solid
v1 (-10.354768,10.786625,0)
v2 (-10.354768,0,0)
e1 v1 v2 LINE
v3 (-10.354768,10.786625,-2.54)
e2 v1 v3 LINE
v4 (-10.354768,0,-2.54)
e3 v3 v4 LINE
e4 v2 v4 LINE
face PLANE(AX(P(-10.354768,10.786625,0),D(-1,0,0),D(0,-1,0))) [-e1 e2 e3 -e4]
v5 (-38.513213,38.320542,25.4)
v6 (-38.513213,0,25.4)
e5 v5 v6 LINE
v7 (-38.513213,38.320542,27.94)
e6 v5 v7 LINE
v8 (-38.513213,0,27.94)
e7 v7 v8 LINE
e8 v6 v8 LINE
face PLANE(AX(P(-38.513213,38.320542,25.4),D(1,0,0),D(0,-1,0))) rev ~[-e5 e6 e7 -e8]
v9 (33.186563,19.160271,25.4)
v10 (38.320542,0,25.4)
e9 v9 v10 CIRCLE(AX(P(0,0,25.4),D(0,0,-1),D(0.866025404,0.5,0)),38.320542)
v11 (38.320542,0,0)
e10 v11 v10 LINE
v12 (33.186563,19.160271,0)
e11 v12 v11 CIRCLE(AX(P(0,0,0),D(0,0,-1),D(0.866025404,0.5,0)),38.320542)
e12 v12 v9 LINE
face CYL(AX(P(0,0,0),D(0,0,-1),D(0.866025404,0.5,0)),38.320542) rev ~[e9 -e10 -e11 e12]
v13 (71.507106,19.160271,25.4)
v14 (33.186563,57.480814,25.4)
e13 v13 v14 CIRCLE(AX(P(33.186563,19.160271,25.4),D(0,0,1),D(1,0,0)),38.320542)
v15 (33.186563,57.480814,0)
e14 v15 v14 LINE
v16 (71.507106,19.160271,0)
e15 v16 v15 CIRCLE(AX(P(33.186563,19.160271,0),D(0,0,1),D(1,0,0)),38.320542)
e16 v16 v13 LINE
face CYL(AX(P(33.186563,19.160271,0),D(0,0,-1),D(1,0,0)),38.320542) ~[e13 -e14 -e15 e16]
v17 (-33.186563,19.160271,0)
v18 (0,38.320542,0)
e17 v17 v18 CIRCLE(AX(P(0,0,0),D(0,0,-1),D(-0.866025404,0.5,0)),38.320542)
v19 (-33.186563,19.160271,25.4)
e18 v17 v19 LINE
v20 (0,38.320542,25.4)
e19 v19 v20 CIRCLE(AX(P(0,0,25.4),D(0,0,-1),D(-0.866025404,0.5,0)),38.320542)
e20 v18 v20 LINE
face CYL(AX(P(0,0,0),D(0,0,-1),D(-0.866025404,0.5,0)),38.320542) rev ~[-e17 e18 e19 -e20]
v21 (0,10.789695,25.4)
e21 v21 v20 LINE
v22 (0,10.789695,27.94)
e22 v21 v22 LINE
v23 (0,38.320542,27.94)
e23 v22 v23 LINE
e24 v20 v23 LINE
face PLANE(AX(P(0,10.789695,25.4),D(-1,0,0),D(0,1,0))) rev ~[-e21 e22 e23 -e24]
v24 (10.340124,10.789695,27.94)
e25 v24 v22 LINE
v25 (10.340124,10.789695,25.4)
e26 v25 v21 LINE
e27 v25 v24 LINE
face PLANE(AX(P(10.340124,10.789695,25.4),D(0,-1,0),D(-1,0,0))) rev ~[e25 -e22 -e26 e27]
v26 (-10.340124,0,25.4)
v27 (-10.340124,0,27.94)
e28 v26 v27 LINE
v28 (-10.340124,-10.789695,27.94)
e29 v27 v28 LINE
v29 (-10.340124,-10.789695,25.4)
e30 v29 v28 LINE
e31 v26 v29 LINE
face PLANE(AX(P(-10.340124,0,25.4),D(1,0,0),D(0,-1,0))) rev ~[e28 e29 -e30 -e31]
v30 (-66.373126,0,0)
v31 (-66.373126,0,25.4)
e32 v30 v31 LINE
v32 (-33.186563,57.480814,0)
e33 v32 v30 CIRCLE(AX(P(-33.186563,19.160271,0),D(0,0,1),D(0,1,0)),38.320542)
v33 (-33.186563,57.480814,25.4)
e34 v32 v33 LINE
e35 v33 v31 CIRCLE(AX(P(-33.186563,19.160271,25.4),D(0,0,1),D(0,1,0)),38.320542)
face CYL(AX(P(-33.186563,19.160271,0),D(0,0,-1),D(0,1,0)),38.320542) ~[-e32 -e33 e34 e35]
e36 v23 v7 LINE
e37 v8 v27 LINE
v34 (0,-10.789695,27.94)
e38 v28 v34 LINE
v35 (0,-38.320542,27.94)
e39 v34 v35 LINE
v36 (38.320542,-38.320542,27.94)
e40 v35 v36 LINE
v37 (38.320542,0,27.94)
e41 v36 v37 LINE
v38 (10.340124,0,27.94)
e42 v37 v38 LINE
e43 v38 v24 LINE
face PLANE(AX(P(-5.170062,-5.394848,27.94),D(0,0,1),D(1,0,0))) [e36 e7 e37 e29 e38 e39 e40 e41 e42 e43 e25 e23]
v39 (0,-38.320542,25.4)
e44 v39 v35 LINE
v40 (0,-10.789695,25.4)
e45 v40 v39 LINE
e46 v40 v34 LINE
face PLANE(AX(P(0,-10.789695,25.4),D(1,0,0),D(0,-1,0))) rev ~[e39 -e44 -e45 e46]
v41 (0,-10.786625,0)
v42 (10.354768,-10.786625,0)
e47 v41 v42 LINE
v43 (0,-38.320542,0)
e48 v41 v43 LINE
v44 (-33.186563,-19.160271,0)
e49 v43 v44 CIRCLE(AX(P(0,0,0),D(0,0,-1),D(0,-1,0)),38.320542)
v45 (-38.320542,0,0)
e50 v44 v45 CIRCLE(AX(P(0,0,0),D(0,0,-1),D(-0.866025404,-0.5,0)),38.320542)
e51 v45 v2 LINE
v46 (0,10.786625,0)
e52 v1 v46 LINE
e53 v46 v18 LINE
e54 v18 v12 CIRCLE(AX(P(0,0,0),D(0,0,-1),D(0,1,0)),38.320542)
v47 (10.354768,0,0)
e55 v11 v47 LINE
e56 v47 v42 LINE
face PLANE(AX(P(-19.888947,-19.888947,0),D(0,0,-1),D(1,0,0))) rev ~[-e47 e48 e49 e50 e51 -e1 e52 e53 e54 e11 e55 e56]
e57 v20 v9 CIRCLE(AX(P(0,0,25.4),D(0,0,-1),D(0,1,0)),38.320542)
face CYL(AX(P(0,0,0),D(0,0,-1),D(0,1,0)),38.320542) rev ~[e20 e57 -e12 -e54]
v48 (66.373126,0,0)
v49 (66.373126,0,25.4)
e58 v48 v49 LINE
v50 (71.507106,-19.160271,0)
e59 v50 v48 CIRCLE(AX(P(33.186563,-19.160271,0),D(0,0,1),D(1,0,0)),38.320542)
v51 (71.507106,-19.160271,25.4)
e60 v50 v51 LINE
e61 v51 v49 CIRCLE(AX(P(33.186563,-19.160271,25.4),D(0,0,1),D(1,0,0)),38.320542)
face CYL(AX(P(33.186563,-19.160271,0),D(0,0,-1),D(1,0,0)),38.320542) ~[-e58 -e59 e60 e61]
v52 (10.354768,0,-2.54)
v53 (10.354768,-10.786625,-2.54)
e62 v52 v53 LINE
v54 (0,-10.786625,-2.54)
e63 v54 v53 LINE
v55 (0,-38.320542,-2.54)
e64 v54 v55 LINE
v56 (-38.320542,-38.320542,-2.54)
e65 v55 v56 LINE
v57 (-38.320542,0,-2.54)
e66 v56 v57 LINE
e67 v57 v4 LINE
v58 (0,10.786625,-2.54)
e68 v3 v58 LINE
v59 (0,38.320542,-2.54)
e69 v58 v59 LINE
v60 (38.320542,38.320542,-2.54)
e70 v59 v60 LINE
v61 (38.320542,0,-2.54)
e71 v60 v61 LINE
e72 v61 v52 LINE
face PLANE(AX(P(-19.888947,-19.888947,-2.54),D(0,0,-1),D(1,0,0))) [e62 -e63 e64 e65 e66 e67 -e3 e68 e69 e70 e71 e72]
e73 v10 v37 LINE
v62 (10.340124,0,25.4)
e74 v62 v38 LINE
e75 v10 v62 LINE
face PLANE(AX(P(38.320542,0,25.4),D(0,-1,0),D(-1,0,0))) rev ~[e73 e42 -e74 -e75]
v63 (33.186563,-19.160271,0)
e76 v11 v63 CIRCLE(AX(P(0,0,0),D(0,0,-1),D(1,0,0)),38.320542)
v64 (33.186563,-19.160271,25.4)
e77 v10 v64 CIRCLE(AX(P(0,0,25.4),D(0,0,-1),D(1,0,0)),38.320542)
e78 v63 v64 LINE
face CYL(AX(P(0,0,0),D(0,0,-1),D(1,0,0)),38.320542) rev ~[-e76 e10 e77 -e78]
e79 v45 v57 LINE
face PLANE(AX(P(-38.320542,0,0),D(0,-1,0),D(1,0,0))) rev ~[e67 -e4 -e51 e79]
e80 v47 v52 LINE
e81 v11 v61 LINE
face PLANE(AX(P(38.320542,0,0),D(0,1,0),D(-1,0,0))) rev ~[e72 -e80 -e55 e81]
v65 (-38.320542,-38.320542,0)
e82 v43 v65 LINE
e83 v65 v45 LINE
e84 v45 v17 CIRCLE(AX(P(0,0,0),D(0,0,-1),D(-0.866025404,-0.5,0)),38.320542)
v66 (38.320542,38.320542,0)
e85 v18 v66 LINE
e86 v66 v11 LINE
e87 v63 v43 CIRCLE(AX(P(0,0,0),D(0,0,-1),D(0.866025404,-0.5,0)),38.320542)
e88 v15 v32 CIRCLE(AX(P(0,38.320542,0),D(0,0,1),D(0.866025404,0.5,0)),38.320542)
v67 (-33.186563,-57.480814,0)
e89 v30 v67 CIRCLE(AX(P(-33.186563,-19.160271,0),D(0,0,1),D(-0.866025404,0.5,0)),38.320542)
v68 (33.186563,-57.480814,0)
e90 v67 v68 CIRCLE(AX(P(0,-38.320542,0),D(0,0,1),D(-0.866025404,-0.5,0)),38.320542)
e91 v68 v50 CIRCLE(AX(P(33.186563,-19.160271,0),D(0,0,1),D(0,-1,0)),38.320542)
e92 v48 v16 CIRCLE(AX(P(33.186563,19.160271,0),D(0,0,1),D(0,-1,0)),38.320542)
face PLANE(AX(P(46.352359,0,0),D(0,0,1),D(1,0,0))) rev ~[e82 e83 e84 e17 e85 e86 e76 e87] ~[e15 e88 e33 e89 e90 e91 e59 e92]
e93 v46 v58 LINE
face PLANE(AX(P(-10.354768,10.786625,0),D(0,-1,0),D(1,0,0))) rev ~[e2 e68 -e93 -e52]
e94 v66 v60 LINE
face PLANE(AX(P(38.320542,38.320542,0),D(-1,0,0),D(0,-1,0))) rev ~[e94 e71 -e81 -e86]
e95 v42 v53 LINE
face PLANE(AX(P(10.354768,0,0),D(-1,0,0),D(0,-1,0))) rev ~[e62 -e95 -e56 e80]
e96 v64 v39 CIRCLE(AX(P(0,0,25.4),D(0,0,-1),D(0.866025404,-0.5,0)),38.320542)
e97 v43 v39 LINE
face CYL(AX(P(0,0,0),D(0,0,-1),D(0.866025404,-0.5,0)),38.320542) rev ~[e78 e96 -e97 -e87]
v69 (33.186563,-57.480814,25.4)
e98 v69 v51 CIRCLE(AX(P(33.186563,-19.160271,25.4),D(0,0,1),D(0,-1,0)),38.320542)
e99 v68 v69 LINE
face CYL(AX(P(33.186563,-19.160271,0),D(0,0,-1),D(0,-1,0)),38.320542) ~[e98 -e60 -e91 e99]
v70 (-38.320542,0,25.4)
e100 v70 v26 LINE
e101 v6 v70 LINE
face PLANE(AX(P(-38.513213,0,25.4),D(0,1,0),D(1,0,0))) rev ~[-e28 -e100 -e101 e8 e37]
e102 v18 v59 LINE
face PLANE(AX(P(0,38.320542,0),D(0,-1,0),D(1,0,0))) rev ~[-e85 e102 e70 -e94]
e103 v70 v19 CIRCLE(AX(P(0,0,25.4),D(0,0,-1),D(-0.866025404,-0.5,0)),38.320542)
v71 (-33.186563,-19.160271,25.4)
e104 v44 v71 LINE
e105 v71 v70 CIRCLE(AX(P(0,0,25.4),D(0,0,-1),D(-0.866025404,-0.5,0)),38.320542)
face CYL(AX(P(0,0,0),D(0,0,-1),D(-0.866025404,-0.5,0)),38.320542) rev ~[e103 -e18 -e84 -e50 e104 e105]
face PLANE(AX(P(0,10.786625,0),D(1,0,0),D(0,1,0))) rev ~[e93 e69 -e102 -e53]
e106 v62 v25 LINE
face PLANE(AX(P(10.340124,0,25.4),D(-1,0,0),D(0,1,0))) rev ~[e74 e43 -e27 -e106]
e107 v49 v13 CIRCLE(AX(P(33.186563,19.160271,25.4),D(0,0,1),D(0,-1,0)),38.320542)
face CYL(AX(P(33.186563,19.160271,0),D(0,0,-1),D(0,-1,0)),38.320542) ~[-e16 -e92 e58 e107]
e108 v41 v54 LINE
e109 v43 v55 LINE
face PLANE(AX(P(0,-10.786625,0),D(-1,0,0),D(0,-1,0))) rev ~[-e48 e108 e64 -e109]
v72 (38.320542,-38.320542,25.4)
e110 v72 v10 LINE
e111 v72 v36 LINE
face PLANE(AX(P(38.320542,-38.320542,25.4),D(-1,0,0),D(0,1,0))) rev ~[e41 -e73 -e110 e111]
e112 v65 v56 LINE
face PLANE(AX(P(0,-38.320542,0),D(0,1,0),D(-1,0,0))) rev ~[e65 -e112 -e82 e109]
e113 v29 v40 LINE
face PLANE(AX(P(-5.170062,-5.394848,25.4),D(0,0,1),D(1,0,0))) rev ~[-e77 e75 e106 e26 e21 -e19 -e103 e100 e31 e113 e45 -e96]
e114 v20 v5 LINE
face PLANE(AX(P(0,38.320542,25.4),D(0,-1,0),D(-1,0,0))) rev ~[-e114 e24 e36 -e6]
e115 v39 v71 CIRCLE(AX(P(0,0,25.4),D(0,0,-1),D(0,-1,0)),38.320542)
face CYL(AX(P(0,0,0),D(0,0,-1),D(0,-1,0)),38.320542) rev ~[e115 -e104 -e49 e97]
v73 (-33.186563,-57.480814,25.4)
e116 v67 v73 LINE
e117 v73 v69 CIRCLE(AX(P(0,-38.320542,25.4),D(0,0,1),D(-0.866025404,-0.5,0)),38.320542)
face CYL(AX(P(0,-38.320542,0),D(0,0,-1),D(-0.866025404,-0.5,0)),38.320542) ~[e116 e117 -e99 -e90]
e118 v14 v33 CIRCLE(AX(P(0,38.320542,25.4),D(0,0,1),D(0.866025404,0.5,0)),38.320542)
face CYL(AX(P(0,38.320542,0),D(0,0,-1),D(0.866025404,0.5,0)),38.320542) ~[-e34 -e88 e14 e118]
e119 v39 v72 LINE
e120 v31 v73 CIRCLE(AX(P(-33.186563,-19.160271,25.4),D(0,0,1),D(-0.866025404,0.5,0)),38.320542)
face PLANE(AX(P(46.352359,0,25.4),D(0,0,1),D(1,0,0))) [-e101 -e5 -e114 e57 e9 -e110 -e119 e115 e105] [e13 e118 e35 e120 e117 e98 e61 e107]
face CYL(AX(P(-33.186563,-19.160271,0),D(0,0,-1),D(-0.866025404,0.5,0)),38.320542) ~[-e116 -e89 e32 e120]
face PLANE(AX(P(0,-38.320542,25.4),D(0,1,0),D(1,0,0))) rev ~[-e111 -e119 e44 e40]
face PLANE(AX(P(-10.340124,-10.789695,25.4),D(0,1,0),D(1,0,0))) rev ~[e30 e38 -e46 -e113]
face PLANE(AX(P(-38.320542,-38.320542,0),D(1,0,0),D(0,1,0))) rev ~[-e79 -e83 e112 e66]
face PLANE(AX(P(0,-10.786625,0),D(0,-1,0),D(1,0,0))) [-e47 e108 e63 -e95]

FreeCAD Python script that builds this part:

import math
import FreeCAD as App
import Part
import Sketcher
Q = App.Units.Quantity

doc = App.newDocument("Part")
body = doc.addObject("PartDesign::Body", "Body")

sketch1 = body.newObject("Sketcher::SketchObject", "Sketch")
sketch1.AttachmentSupport = (doc.getObject("XY_Plane"), [""])
sketch1.MapMode = "FlatFace"
sketch1.addGeometry(Part.ArcOfCircle(Part.Circle(App.Vector(-33.186563, 19.160271, 0), App.Vector(0, 0, 1), 38.320542), math.radians(90), math.radians(210)), False)
sketch1.addGeometry(Part.ArcOfCircle(Part.Circle(App.Vector(-33.186563, -19.160271, 0), App.Vector(0, 0, 1), 38.320542), math.radians(150), math.radians(270)), False)
sketch1.addGeometry(Part.ArcOfCircle(Part.Circle(App.Vector(0, -38.320542, 0), App.Vector(0, 0, 1), 38.320542), math.radians(-150), math.radians(-30)), False)
sketch1.addGeometry(Part.ArcOfCircle(Part.Circle(App.Vector(33.186563, -19.160271, 0), App.Vector(0, 0, 1), 38.320542), math.radians(-90), math.radians(0)), False)
sketch1.addGeometry(Part.ArcOfCircle(Part.Circle(App.Vector(33.186563, -19.160271, 0), App.Vector(0, 0, 1), 38.320542), math.radians(0), math.radians(30)), False)
sketch1.addGeometry(Part.ArcOfCircle(Part.Circle(App.Vector(33.186563, 19.160271, 0), App.Vector(0, 0, 1), 38.320542), math.radians(-30), math.radians(0)), False)
sketch1.addGeometry(Part.ArcOfCircle(Part.Circle(App.Vector(33.186563, 19.160271, 0), App.Vector(0, 0, 1), 38.320542), math.radians(0), math.radians(90)), False)
sketch1.addGeometry(Part.ArcOfCircle(Part.Circle(App.Vector(0, 38.320542, 0), App.Vector(0, 0, 1), 38.320542), math.radians(30), math.radians(150)), False)
sketch1.addGeometry(Part.ArcOfCircle(Part.Circle(App.Vector(0, 0, 0), App.Vector(0, 0, 1), 38.320542), math.radians(-150), math.radians(-90)), False)
sketch1.addGeometry(Part.ArcOfCircle(Part.Circle(App.Vector(0, 0, 0), App.Vector(0, 0, 1), 38.320542), math.radians(150), math.radians(210)), False)
sketch1.addGeometry(Part.ArcOfCircle(Part.Circle(App.Vector(0, 0, 0), App.Vector(0, 0, 1), 38.320542), math.radians(90), math.radians(150)), False)
sketch1.addGeometry(Part.ArcOfCircle(Part.Circle(App.Vector(0, 0, 0), App.Vector(0, 0, 1), 38.320542), math.radians(30), math.radians(90)), False)
sketch1.addGeometry(Part.ArcOfCircle(Part.Circle(App.Vector(0, 0, 0), App.Vector(0, 0, 1), 38.320542), math.radians(0), math.radians(30)), False)
sketch1.addGeometry(Part.ArcOfCircle(Part.Circle(App.Vector(0, 0, 0), App.Vector(0, 0, 1), 38.320542), math.radians(-30), math.radians(0)), False)
sketch1.addGeometry(Part.ArcOfCircle(Part.Circle(App.Vector(0, 0, 0), App.Vector(0, 0, 1), 38.320542), math.radians(-90), math.radians(-30)), False)
sketch1.addConstraint(Sketcher.Constraint("Coincident", 0, 2, 1, 1))
sketch1.addConstraint(Sketcher.Constraint("Coincident", 1, 2, 2, 1))
sketch1.addConstraint(Sketcher.Constraint("Coincident", 2, 2, 3, 1))
sketch1.addConstraint(Sketcher.Constraint("Tangent", 3, 2, 4, 1))
sketch1.addConstraint(Sketcher.Constraint("Coincident", 4, 2, 5, 1))
sketch1.addConstraint(Sketcher.Constraint("Tangent", 5, 2, 6, 1))
sketch1.addConstraint(Sketcher.Constraint("Coincident", 6, 2, 7, 1))
sketch1.addConstraint(Sketcher.Constraint("Coincident", 7, 2, 0, 1))
sketch1.addConstraint(Sketcher.Constraint("Tangent", 8, 1, 9, 2))
sketch1.addConstraint(Sketcher.Constraint("Tangent", 9, 1, 10, 2))
sketch1.addConstraint(Sketcher.Constraint("Tangent", 10, 1, 11, 2))
sketch1.addConstraint(Sketcher.Constraint("Tangent", 11, 1, 12, 2))
sketch1.addConstraint(Sketcher.Constraint("Tangent", 12, 1, 13, 2))
sketch1.addConstraint(Sketcher.Constraint("Tangent", 13, 1, 14, 2))
sketch1.addConstraint(Sketcher.Constraint("Tangent", 14, 1, 8, 2))
sketch1.addConstraint(Sketcher.Constraint("Coincident", 8, 3, -1, 1))
sketch1.addConstraint(Sketcher.Constraint("Coincident", 10, 3, -1, 1))
sketch1.addConstraint(Sketcher.Constraint("Coincident", 12, 3, -1, 1))
sketch1.addConstraint(Sketcher.Constraint("Coincident", 8, 1, 1, 3))
sketch1.addConstraint(Sketcher.Constraint("Coincident", 9, 1, 0, 3))
sketch1.addConstraint(Sketcher.Constraint("Coincident", 10, 1, 7, 3))
sketch1.addConstraint(Sketcher.Constraint("Coincident", 11, 1, 5, 3))
sketch1.addConstraint(Sketcher.Constraint("Coincident", 13, 1, 3, 3))
sketch1.addConstraint(Sketcher.Constraint("Coincident", 14, 1, 2, 3))
sketch1.addConstraint(Sketcher.Constraint("Equal", 0, 1))
sketch1.addConstraint(Sketcher.Constraint("Equal", 1, 2))
sketch1.addConstraint(Sketcher.Constraint("Equal", 2, 3))
sketch1.addConstraint(Sketcher.Constraint("Equal", 3, 4))
sketch1.addConstraint(Sketcher.Constraint("Equal", 4, 5))
sketch1.addConstraint(Sketcher.Constraint("Equal", 5, 6))
sketch1.addConstraint(Sketcher.Constraint("Equal", 6, 7))
sketch1.addConstraint(Sketcher.Constraint("Equal", 7, 8))
sketch1.addConstraint(Sketcher.Constraint("Symmetric", 0, 2, 4, 2, -1, 1))
sketch1.addConstraint(Sketcher.Constraint("Symmetric", 1, 2, 2, 2, -2))
sketch1.addConstraint(Sketcher.Constraint("PointOnObject", 7, 3, -2))
sketch1.addConstraint(Sketcher.Constraint("PointOnObject", 12, 1, -1))
sketch1.addConstraint(Sketcher.Constraint("Horizontal", 4, 3, 3, 2))
sketch1.addConstraint(Sketcher.Constraint("Horizontal", 6, 3, 5, 2))
sketch1.addConstraint(Sketcher.Constraint("Radius", 0, Q("38.320542 mm")))
sketch1.addConstraint(Sketcher.Constraint("DistanceY", -1, 1, 0, 3, Q("19.160271 mm")))
pad1 = body.newObject("PartDesign::Pad", "Pad")
pad1.Profile = sketch1
pad1.Length = Q("1 in")

sketch2 = body.newObject("Sketcher::SketchObject", "Sketch001")
sketch2.AttachmentSupport = (doc.getObject("XY_Plane"), [""])
sketch2.MapMode = "FlatFace"
sketch2.AttachmentOffset = App.Placement(App.Vector(0, 0, 1 * 25.4), App.Rotation())
sketch2.addGeometry(Part.LineSegment(App.Vector(-10.340124, -10.789695, 0), App.Vector(0, -10.789695, 0)), False)
sketch2.addGeometry(Part.LineSegment(App.Vector(0, -10.789695, 0), App.Vector(0, -38.320542, 0)), False)
sketch2.addGeometry(Part.LineSegment(App.Vector(0, -38.320542, 0), App.Vector(38.320542, -38.320542, 0)), False)
sketch2.addGeometry(Part.LineSegment(App.Vector(38.320542, -38.320542, 0), App.Vector(38.320542, 0, 0)), False)
sketch2.addGeometry(Part.LineSegment(App.Vector(38.320542, 0, 0), App.Vector(10.340124, 0, 0)), False)
sketch2.addGeometry(Part.LineSegment(App.Vector(10.340124, 0, 0), App.Vector(10.340124, 10.789695, 0)), False)
sketch2.addGeometry(Part.LineSegment(App.Vector(10.340124, 10.789695, 0), App.Vector(0, 10.789695, 0)), False)
sketch2.addGeometry(Part.LineSegment(App.Vector(0, 10.789695, 0), App.Vector(0, 38.320542, 0)), False)
sketch2.addGeometry(Part.LineSegment(App.Vector(0, 38.320542, 0), App.Vector(-38.513213, 38.320542, 0)), False)
sketch2.addGeometry(Part.LineSegment(App.Vector(-38.513213, 38.320542, 0), App.Vector(-38.513213, 0, 0)), False)
sketch2.addGeometry(Part.LineSegment(App.Vector(-38.513213, 0, 0), App.Vector(-10.340124, 0, 0)), False)
sketch2.addGeometry(Part.LineSegment(App.Vector(-10.340124, 0, 0), App.Vector(-10.340124, -10.789695, 0)), False)
sketch2.addConstraint(Sketcher.Constraint("Coincident", 0, 2, 1, 1))
sketch2.addConstraint(Sketcher.Constraint("Coincident", 1, 2, 2, 1))
sketch2.addConstraint(Sketcher.Constraint("Coincident", 2, 2, 3, 1))
sketch2.addConstraint(Sketcher.Constraint("Coincident", 3, 2, 4, 1))
sketch2.addConstraint(Sketcher.Constraint("Coincident", 4, 2, 5, 1))
sketch2.addConstraint(Sketcher.Constraint("Coincident", 5, 2, 6, 1))
sketch2.addConstraint(Sketcher.Constraint("Coincident", 6, 2, 7, 1))
sketch2.addConstraint(Sketcher.Constraint("Coincident", 7, 2, 8, 1))
sketch2.addConstraint(Sketcher.Constraint("Coincident", 8, 2, 9, 1))
sketch2.addConstraint(Sketcher.Constraint("Coincident", 9, 2, 10, 1))
sketch2.addConstraint(Sketcher.Constraint("Coincident", 10, 2, 11, 1))
sketch2.addConstraint(Sketcher.Constraint("Coincident", 11, 2, 0, 1))
sketch2.addConstraint(Sketcher.Constraint("Horizontal", 0))
sketch2.addConstraint(Sketcher.Constraint("Vertical", 1))
sketch2.addConstraint(Sketcher.Constraint("Horizontal", 2))
sketch2.addConstraint(Sketcher.Constraint("Vertical", 3))
sketch2.addConstraint(Sketcher.Constraint("Horizontal", 4))
sketch2.addConstraint(Sketcher.Constraint("Vertical", 5))
sketch2.addConstraint(Sketcher.Constraint("Horizontal", 6))
sketch2.addConstraint(Sketcher.Constraint("Vertical", 7))
sketch2.addConstraint(Sketcher.Constraint("Horizontal", 8))
sketch2.addConstraint(Sketcher.Constraint("Vertical", 9))
sketch2.addConstraint(Sketcher.Constraint("Horizontal", 10))
sketch2.addConstraint(Sketcher.Constraint("Vertical", 11))
sketch2.addConstraint(Sketcher.Constraint("Symmetric", 0, 2, 6, 2, -1, 1))
sketch2.addConstraint(Sketcher.Constraint("Symmetric", 4, 2, 10, 2, -1, 1))
sketch2.addConstraint(Sketcher.Constraint("Symmetric", 1, 2, 7, 2, -1))
sketch2.addConstraint(Sketcher.Constraint("PointOnObject", 3, 2, -1))
sketch2.addConstraint(Sketcher.Constraint("Equal", 2, 3))
sketch2.addConstraint(Sketcher.Constraint("DistanceX", 10, 1, 10, 2, Q("28.173089 mm")))
sketch2.addConstraint(Sketcher.Constraint("DistanceX", 0, 1, 0, 2, Q("10.340124 mm")))
sketch2.addConstraint(Sketcher.Constraint("DistanceX", 2, 1, 2, 2, Q("38.320542 mm")))
sketch2.addConstraint(Sketcher.Constraint("DistanceY", 1, 2, 1, 1, Q("27.530847 mm")))
pad2 = body.newObject("PartDesign::Pad", "Pad001")
pad2.Profile = sketch2
pad2.Length = Q("0.1 in")

sketch3 = body.newObject("Sketcher::SketchObject", "Sketch002")
sketch3.AttachmentSupport = (doc.getObject("XY_Plane"), [""])
sketch3.MapMode = "FlatFace"
sketch3.addGeometry(Part.LineSegment(App.Vector(0, -10.786625, 0), App.Vector(0, -38.320542, 0)), False)
sketch3.addGeometry(Part.LineSegment(App.Vector(0, -38.320542, 0), App.Vector(-38.320542, -38.320542, 0)), False)
sketch3.addGeometry(Part.LineSegment(App.Vector(-38.320542, -38.320542, 0), App.Vector(-38.320542, 0, 0)), False)
sketch3.addGeometry(Part.LineSegment(App.Vector(-38.320542, 0, 0), App.Vector(-10.354768, 0, 0)), False)
sketch3.addGeometry(Part.LineSegment(App.Vector(-10.354768, 0, 0), App.Vector(-10.354768, 10.786625, 0)), False)
sketch3.addGeometry(Part.LineSegment(App.Vector(-10.354768, 10.786625, 0), App.Vector(0, 10.786625, 0)), False)
sketch3.addGeometry(Part.LineSegment(App.Vector(0, 10.786625, 0), App.Vector(0, 38.320542, 0)), False)
sketch3.addGeometry(Part.LineSegment(App.Vector(0, 38.320542, 0), App.Vector(38.320542, 38.320542, 0)), False)
sketch3.addGeometry(Part.LineSegment(App.Vector(38.320542, 38.320542, 0), App.Vector(38.320542, 0, 0)), False)
sketch3.addGeometry(Part.LineSegment(App.Vector(38.320542, 0, 0), App.Vector(10.354768, 0, 0)), False)
sketch3.addGeometry(Part.LineSegment(App.Vector(10.354768, 0, 0), App.Vector(10.354768, -10.786625, 0)), False)
sketch3.addGeometry(Part.LineSegment(App.Vector(10.354768, -10.786625, 0), App.Vector(0, -10.786625, 0)), False)
sketch3.addConstraint(Sketcher.Constraint("Coincident", 0, 2, 1, 1))
sketch3.addConstraint(Sketcher.Constraint("Coincident", 1, 2, 2, 1))
sketch3.addConstraint(Sketcher.Constraint("Coincident", 2, 2, 3, 1))
sketch3.addConstraint(Sketcher.Constraint("Coincident", 3, 2, 4, 1))
sketch3.addConstraint(Sketcher.Constraint("Coincident", 4, 2, 5, 1))
sketch3.addConstraint(Sketcher.Constraint("Coincident", 5, 2, 6, 1))
sketch3.addConstraint(Sketcher.Constraint("Coincident", 6, 2, 7, 1))
sketch3.addConstraint(Sketcher.Constraint("Coincident", 7, 2, 8, 1))
sketch3.addConstraint(Sketcher.Constraint("Coincident", 8, 2, 9, 1))
sketch3.addConstraint(Sketcher.Constraint("Coincident", 9, 2, 10, 1))
sketch3.addConstraint(Sketcher.Constraint("Coincident", 10, 2, 11, 1))
sketch3.addConstraint(Sketcher.Constraint("Coincident", 11, 2, 0, 1))
sketch3.addConstraint(Sketcher.Constraint("Vertical", 0))
sketch3.addConstraint(Sketcher.Constraint("Horizontal", 1))
sketch3.addConstraint(Sketcher.Constraint("Vertical", 2))
sketch3.addConstraint(Sketcher.Constraint("Horizontal", 3))
sketch3.addConstraint(Sketcher.Constraint("Vertical", 4))
sketch3.addConstraint(Sketcher.Constraint("Horizontal", 5))
sketch3.addConstraint(Sketcher.Constraint("Vertical", 6))
sketch3.addConstraint(Sketcher.Constraint("Horizontal", 7))
sketch3.addConstraint(Sketcher.Constraint("Vertical", 8))
sketch3.addConstraint(Sketcher.Constraint("Horizontal", 9))
sketch3.addConstraint(Sketcher.Constraint("Vertical", 10))
sketch3.addConstraint(Sketcher.Constraint("Horizontal", 11))
sketch3.addConstraint(Sketcher.Constraint("Symmetric", 0, 2, 6, 2, -1, 1))
sketch3.addConstraint(Sketcher.Constraint("Symmetric", 2, 2, 8, 2, -1, 1))
sketch3.addConstraint(Sketcher.Constraint("Symmetric", 4, 2, 10, 2, -1, 1))
sketch3.addConstraint(Sketcher.Constraint("PointOnObject", 0, 2, -2))
sketch3.addConstraint(Sketcher.Constraint("PointOnObject", 2, 2, -1))
sketch3.addConstraint(Sketcher.Constraint("Equal", 7, 2))
sketch3.addConstraint(Sketcher.Constraint("DistanceX", 1, 2, 1, 1, Q("38.320542 mm")))
sketch3.addConstraint(Sketcher.Constraint("DistanceX", 3, 1, 3, 2, Q("27.965775 mm")))
sketch3.addConstraint(Sketcher.Constraint("DistanceY", 0, 2, 0, 1, Q("27.533918 mm")))
pad3 = body.newObject("PartDesign::Pad", "Pad002")
pad3.Profile = sketch3
pad3.Length = Q("0.1 in")
pad3.Reversed = True

doc.recompute()
